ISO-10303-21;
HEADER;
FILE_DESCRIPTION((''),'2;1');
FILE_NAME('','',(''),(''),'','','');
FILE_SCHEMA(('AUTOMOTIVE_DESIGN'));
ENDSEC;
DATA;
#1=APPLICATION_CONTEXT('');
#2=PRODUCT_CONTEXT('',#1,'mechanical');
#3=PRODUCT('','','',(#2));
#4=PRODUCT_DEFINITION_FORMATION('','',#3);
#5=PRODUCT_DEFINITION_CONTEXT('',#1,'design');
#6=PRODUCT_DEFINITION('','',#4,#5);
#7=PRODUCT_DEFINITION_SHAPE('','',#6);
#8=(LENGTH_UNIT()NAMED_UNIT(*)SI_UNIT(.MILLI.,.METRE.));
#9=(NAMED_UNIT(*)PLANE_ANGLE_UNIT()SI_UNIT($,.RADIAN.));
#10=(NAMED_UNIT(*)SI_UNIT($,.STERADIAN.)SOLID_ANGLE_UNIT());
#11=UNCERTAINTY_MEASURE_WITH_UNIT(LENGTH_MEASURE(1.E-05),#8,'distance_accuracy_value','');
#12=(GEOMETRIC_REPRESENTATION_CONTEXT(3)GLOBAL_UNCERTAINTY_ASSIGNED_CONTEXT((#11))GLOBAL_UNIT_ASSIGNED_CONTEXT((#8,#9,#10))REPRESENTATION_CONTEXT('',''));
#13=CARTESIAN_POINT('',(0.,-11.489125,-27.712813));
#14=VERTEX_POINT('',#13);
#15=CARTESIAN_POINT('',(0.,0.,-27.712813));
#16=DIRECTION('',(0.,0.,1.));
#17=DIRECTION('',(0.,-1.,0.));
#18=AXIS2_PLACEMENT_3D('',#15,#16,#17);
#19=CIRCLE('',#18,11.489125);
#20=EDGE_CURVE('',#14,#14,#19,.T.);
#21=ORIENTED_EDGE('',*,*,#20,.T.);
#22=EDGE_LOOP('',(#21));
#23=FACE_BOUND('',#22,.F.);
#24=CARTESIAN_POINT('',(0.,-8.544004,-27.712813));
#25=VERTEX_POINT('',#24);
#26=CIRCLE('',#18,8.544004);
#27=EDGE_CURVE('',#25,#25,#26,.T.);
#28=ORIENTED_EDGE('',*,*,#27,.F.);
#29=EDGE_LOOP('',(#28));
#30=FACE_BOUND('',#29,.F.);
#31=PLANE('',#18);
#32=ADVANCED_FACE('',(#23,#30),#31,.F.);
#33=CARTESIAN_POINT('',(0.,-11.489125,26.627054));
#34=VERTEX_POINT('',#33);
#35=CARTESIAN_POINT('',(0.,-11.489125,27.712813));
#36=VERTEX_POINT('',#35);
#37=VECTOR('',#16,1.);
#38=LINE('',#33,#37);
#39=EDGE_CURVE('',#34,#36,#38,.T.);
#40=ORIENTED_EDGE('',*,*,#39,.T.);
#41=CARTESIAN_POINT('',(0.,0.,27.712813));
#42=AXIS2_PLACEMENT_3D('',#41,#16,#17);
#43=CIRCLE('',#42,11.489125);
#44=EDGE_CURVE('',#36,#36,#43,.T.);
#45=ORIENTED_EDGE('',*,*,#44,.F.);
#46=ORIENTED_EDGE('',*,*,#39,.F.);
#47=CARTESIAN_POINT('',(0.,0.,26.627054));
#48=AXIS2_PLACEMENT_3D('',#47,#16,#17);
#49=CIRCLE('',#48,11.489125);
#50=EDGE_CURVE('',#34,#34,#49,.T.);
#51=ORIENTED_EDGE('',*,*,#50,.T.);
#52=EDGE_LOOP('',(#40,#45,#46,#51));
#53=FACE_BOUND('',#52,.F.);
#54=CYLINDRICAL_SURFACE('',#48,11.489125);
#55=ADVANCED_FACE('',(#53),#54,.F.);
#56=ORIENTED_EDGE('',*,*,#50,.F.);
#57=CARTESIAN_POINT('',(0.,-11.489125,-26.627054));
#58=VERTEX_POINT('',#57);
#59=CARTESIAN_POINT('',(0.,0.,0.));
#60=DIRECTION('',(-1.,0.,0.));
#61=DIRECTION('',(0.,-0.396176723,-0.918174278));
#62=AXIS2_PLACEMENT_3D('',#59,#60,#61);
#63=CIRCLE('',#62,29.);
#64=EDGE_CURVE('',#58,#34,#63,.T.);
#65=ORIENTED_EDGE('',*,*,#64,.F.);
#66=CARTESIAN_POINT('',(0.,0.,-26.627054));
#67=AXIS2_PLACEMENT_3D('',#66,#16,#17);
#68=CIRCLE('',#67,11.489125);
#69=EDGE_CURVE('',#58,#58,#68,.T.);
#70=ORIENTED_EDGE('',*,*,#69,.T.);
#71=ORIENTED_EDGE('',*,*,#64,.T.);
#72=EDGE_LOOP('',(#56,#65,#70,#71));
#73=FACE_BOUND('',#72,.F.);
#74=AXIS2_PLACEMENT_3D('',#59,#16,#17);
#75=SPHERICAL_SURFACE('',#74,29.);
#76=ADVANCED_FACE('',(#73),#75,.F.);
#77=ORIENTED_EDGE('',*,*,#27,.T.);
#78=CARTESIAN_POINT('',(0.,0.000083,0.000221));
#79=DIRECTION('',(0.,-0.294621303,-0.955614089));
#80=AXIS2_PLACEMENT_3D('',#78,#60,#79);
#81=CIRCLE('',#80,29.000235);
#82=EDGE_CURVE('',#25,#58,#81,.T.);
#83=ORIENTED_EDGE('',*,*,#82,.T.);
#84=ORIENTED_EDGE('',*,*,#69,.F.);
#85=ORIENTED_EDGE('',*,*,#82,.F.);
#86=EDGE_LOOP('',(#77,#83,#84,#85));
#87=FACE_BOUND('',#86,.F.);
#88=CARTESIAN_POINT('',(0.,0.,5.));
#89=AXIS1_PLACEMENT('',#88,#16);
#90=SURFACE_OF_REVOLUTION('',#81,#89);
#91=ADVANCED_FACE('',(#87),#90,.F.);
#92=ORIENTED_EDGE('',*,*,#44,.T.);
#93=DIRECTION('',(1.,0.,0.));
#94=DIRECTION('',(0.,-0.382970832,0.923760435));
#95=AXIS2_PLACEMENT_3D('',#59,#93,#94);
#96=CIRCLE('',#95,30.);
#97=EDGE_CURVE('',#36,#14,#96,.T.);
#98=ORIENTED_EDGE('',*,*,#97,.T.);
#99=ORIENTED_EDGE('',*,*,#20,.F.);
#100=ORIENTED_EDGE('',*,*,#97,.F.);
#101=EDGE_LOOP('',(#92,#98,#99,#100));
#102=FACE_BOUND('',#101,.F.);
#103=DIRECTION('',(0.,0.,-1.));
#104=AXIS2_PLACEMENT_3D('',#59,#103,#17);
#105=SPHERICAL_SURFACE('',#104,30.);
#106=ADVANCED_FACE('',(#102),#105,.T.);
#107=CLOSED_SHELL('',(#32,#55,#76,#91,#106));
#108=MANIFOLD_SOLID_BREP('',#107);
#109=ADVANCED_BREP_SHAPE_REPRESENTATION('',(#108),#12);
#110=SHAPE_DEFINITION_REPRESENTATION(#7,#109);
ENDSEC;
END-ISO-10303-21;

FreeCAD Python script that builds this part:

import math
import FreeCAD as App
import Part
import Sketcher
from FreeCAD import Vector

doc = App.newDocument("Part")
params = doc.addObject("Spreadsheet::Sheet", "Params")
for row, (alias, value) in enumerate([
    ("sketch1_radius", "30 mm"),
    ("sketch1_radius2", "29 mm"),
    ("revolution_angle", "360 deg"),
], start=1):
    params.set(f"A{row}", alias)
    params.set(f"B{row}", "=" + value)
    params.setAlias(f"B{row}", alias)

body = doc.addObject("PartDesign::Body", "Body")

# Sketch on YZ plane
sketch1 = body.newObject("Sketcher::SketchObject", "Sketch")
sketch1.AttachmentSupport = (doc.getObject("YZ_Plane"), [""])
sketch1.MapMode = "FlatFace"
sketch1.addGeometry(Part.LineSegment(Vector(-11.489125, 26.627054, 0), Vector(-11.489125, 27.712813, 0)), False)
sketch1.addGeometry(Part.ArcOfCircle(Part.Circle(Vector(0, 0, 0), Vector(0, 0, 1), 30), math.radians(112.517825), math.radians(247.482175)), False)
sketch1.addGeometry(Part.LineSegment(Vector(-11.489125, -27.712813, 0), Vector(-8.544004, -27.712813, 0)), False)
sketch1.addGeometry(Part.ArcOfCircle(Part.Circle(Vector(0.000083, 0.000221, 0), Vector(0, 0, 1), 29.000235), math.radians(-113.339362), math.radians(-107.13483)), False)
sketch1.addGeometry(Part.ArcOfCircle(Part.Circle(Vector(0, 0, 0), Vector(0, 0, 1), 29), math.radians(113.339383), math.radians(246.660617)), False)
sketch1.addConstraint(Sketcher.Constraint("Coincident", 0, 2, 1, 1))
sketch1.addConstraint(Sketcher.Constraint("Coincident", 1, 2, 2, 1))
sketch1.addConstraint(Sketcher.Constraint("Coincident", 2, 2, 3, 2))
sketch1.addConstraint(Sketcher.Constraint("Tangent", 3, 1, 4, 2))
sketch1.addConstraint(Sketcher.Constraint("Coincident", 4, 1, 0, 1))
sketch1.addConstraint(Sketcher.Constraint("Vertical", 0))
sketch1.addConstraint(Sketcher.Constraint("Horizontal", 2))
sketch1.addConstraint(Sketcher.Constraint("Coincident", 1, 3, -1, 1))
sketch1.addConstraint(Sketcher.Constraint("Coincident", 4, 3, -1, 1))
sketch1.addConstraint(Sketcher.Constraint("Vertical", 0, 2, 1, 2))
sketch1.addConstraint(Sketcher.Constraint("Vertical", 1, 2, 3, 1))
sketch1.addConstraint(Sketcher.Constraint("Radius", 1, 30.0))
sketch1.addConstraint(Sketcher.Constraint("Radius", 4, 29.0))
sketch1.addConstraint(Sketcher.Constraint("Radius", 3, 29.000235))
sketch1.addConstraint(Sketcher.Constraint("DistanceX", 2, 1, 2, 2, 2.945121))
sketch1.setExpression("Constraints[11]", "Params.sketch1_radius")
sketch1.setExpression("Constraints[12]", "Params.sketch1_radius2")
revolution = body.newObject("PartDesign::Revolution", "Revolution")
revolution.Profile = sketch1
revolution.ReferenceAxis = (sketch1, ["V_Axis"])
revolution.setExpression("Angle", "Params.revolution_angle")

doc.recompute()
